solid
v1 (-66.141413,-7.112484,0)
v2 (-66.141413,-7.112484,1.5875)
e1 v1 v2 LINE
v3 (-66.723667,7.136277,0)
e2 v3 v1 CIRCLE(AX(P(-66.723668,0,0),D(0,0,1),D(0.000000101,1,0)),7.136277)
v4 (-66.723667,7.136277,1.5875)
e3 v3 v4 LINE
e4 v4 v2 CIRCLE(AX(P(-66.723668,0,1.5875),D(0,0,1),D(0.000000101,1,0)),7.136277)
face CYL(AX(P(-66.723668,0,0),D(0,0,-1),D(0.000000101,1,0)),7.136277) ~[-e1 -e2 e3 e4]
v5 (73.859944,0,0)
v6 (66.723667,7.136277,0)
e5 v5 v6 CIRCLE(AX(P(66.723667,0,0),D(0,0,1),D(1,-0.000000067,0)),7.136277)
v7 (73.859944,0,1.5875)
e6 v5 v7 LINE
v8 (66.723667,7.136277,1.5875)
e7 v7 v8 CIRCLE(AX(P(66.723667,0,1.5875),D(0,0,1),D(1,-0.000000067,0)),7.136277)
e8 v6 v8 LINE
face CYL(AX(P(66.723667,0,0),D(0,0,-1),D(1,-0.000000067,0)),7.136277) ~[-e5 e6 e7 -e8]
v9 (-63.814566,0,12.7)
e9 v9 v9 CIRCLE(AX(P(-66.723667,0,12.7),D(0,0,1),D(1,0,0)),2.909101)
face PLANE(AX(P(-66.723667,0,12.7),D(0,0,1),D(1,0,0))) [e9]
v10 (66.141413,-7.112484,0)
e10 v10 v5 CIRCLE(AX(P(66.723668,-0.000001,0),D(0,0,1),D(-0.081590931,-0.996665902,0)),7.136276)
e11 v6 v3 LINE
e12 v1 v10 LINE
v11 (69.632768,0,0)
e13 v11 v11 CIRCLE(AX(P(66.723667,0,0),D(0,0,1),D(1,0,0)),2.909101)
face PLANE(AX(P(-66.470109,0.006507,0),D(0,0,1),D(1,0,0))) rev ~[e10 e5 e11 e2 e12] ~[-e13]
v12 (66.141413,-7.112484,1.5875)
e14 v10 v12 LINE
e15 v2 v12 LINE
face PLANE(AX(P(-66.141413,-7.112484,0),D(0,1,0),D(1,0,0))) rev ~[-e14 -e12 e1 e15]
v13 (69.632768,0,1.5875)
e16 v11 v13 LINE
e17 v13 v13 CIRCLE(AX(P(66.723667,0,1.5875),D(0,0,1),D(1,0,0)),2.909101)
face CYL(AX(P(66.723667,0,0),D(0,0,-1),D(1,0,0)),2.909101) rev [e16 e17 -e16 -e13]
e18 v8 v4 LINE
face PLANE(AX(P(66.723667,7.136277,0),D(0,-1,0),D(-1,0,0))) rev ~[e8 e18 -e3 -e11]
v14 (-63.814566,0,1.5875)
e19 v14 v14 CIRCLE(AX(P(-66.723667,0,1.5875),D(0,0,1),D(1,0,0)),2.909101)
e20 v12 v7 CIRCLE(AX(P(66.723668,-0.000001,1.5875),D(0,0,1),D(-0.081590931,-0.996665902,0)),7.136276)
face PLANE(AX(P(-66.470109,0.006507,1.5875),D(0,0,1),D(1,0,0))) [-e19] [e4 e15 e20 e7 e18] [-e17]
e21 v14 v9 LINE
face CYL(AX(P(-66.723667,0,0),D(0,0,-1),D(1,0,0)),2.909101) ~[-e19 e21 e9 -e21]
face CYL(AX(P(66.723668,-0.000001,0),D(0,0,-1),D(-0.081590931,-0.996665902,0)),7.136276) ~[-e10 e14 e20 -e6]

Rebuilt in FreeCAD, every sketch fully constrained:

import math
import FreeCAD as App
import Part
import Sketcher
Q = App.Units.Quantity

doc = App.newDocument("Part")
body = doc.addObject("PartDesign::Body", "Body")

# Sketch on XY plane
sketch1 = body.newObject("Sketcher::SketchObject", "Sketch")
sketch1.AttachmentSupport = (doc.getObject("XY_Plane"), [""])
sketch1.MapMode = "FlatFace"
sketch1.addGeometry([
    Part.ArcOfCircle(Part.Circle(App.Vector(-66.7, 0, 0), App.Vector(0, 0, 1), 7.1), math.radians(90), math.radians(275)),  # 0
    Part.LineSegment(App.Vector(-66.1, -7.1, 0), App.Vector(66.1, -7.1, 0)),  # 1
    Part.ArcOfCircle(Part.Circle(App.Vector(66.7, 0, 0), App.Vector(0, 0, 1), 7.1), math.radians(-95), math.radians(0)),  # 2
    Part.ArcOfCircle(Part.Circle(App.Vector(66.7, 0, 0), App.Vector(0, 0, 1), 7.1), math.radians(0), math.radians(90)),  # 3
    Part.LineSegment(App.Vector(66.7, 7.1, 0), App.Vector(-66.7, 7.1, 0)),  # 4
    Part.Circle(App.Vector(-66.7, 0, 0), App.Vector(0, 0, 1), 2.9),  # 5
    Part.Circle(App.Vector(66.7, 0, 0), App.Vector(0, 0, 1), 2.9),  # 6
], False)
sketch1.addConstraint([
    Sketcher.Constraint("Coincident", 0, 2, 1, 1),
    Sketcher.Constraint("Coincident", 1, 2, 2, 1),
    Sketcher.Constraint("Tangent", 2, 2, 3, 1),
    Sketcher.Constraint("Tangent", 3, 2, 4, 1),
    Sketcher.Constraint("Tangent", 4, 2, 0, 1),
    Sketcher.Constraint("Horizontal", 1),
    Sketcher.Constraint("Horizontal", 4),
    Sketcher.Constraint("Coincident", 5, 3, 0, 3),
    Sketcher.Constraint("Coincident", 6, 3, 2, 3),
    Sketcher.Constraint("Equal", 0, 2),
    Sketcher.Constraint("Equal", 2, 3),
    Sketcher.Constraint("Equal", 5, 6),
    Sketcher.Constraint("Symmetric", 0, 3, 2, 3, -1, 1),
    Sketcher.Constraint("PointOnObject", 2, 2, -1),
    Sketcher.Constraint("Diameter", 5, Q("5.818202 mm")),
    Sketcher.Constraint("Radius", 0, Q("7.136277 mm")),
    Sketcher.Constraint("DistanceX", 1, 1, 1, 2, Q("132.282826 mm")),
    Sketcher.Constraint("DistanceX", 4, 2, 4, 1, Q("133.447334 mm")),
])
pad1 = body.newObject("PartDesign::Pad", "Pad")
pad1.Profile = sketch1
pad1.Length = Q("0.0625 in")

# Sketch on XY plane
sketch2 = body.newObject("Sketcher::SketchObject", "Sketch001")
sketch2.AttachmentSupport = (doc.getObject("XY_Plane"), [""])
sketch2.MapMode = "FlatFace"
sketch2.addGeometry(Part.Circle(App.Vector(-66.7, 0, 0), App.Vector(0, 0, 1), 2.9), False)
sketch2.addConstraint([
    Sketcher.Constraint("PointOnObject", 0, 3, -1),
    Sketcher.Constraint("Diameter", 0, Q("5.818202 mm")),
    Sketcher.Constraint("DistanceX", 0, 3, -1, 1, Q("66.723667 mm")),
])
pad2 = body.newObject("PartDesign::Pad", "Pad001")
pad2.Profile = sketch2
pad2.Length = Q("0.5 in")

doc.recompute()
